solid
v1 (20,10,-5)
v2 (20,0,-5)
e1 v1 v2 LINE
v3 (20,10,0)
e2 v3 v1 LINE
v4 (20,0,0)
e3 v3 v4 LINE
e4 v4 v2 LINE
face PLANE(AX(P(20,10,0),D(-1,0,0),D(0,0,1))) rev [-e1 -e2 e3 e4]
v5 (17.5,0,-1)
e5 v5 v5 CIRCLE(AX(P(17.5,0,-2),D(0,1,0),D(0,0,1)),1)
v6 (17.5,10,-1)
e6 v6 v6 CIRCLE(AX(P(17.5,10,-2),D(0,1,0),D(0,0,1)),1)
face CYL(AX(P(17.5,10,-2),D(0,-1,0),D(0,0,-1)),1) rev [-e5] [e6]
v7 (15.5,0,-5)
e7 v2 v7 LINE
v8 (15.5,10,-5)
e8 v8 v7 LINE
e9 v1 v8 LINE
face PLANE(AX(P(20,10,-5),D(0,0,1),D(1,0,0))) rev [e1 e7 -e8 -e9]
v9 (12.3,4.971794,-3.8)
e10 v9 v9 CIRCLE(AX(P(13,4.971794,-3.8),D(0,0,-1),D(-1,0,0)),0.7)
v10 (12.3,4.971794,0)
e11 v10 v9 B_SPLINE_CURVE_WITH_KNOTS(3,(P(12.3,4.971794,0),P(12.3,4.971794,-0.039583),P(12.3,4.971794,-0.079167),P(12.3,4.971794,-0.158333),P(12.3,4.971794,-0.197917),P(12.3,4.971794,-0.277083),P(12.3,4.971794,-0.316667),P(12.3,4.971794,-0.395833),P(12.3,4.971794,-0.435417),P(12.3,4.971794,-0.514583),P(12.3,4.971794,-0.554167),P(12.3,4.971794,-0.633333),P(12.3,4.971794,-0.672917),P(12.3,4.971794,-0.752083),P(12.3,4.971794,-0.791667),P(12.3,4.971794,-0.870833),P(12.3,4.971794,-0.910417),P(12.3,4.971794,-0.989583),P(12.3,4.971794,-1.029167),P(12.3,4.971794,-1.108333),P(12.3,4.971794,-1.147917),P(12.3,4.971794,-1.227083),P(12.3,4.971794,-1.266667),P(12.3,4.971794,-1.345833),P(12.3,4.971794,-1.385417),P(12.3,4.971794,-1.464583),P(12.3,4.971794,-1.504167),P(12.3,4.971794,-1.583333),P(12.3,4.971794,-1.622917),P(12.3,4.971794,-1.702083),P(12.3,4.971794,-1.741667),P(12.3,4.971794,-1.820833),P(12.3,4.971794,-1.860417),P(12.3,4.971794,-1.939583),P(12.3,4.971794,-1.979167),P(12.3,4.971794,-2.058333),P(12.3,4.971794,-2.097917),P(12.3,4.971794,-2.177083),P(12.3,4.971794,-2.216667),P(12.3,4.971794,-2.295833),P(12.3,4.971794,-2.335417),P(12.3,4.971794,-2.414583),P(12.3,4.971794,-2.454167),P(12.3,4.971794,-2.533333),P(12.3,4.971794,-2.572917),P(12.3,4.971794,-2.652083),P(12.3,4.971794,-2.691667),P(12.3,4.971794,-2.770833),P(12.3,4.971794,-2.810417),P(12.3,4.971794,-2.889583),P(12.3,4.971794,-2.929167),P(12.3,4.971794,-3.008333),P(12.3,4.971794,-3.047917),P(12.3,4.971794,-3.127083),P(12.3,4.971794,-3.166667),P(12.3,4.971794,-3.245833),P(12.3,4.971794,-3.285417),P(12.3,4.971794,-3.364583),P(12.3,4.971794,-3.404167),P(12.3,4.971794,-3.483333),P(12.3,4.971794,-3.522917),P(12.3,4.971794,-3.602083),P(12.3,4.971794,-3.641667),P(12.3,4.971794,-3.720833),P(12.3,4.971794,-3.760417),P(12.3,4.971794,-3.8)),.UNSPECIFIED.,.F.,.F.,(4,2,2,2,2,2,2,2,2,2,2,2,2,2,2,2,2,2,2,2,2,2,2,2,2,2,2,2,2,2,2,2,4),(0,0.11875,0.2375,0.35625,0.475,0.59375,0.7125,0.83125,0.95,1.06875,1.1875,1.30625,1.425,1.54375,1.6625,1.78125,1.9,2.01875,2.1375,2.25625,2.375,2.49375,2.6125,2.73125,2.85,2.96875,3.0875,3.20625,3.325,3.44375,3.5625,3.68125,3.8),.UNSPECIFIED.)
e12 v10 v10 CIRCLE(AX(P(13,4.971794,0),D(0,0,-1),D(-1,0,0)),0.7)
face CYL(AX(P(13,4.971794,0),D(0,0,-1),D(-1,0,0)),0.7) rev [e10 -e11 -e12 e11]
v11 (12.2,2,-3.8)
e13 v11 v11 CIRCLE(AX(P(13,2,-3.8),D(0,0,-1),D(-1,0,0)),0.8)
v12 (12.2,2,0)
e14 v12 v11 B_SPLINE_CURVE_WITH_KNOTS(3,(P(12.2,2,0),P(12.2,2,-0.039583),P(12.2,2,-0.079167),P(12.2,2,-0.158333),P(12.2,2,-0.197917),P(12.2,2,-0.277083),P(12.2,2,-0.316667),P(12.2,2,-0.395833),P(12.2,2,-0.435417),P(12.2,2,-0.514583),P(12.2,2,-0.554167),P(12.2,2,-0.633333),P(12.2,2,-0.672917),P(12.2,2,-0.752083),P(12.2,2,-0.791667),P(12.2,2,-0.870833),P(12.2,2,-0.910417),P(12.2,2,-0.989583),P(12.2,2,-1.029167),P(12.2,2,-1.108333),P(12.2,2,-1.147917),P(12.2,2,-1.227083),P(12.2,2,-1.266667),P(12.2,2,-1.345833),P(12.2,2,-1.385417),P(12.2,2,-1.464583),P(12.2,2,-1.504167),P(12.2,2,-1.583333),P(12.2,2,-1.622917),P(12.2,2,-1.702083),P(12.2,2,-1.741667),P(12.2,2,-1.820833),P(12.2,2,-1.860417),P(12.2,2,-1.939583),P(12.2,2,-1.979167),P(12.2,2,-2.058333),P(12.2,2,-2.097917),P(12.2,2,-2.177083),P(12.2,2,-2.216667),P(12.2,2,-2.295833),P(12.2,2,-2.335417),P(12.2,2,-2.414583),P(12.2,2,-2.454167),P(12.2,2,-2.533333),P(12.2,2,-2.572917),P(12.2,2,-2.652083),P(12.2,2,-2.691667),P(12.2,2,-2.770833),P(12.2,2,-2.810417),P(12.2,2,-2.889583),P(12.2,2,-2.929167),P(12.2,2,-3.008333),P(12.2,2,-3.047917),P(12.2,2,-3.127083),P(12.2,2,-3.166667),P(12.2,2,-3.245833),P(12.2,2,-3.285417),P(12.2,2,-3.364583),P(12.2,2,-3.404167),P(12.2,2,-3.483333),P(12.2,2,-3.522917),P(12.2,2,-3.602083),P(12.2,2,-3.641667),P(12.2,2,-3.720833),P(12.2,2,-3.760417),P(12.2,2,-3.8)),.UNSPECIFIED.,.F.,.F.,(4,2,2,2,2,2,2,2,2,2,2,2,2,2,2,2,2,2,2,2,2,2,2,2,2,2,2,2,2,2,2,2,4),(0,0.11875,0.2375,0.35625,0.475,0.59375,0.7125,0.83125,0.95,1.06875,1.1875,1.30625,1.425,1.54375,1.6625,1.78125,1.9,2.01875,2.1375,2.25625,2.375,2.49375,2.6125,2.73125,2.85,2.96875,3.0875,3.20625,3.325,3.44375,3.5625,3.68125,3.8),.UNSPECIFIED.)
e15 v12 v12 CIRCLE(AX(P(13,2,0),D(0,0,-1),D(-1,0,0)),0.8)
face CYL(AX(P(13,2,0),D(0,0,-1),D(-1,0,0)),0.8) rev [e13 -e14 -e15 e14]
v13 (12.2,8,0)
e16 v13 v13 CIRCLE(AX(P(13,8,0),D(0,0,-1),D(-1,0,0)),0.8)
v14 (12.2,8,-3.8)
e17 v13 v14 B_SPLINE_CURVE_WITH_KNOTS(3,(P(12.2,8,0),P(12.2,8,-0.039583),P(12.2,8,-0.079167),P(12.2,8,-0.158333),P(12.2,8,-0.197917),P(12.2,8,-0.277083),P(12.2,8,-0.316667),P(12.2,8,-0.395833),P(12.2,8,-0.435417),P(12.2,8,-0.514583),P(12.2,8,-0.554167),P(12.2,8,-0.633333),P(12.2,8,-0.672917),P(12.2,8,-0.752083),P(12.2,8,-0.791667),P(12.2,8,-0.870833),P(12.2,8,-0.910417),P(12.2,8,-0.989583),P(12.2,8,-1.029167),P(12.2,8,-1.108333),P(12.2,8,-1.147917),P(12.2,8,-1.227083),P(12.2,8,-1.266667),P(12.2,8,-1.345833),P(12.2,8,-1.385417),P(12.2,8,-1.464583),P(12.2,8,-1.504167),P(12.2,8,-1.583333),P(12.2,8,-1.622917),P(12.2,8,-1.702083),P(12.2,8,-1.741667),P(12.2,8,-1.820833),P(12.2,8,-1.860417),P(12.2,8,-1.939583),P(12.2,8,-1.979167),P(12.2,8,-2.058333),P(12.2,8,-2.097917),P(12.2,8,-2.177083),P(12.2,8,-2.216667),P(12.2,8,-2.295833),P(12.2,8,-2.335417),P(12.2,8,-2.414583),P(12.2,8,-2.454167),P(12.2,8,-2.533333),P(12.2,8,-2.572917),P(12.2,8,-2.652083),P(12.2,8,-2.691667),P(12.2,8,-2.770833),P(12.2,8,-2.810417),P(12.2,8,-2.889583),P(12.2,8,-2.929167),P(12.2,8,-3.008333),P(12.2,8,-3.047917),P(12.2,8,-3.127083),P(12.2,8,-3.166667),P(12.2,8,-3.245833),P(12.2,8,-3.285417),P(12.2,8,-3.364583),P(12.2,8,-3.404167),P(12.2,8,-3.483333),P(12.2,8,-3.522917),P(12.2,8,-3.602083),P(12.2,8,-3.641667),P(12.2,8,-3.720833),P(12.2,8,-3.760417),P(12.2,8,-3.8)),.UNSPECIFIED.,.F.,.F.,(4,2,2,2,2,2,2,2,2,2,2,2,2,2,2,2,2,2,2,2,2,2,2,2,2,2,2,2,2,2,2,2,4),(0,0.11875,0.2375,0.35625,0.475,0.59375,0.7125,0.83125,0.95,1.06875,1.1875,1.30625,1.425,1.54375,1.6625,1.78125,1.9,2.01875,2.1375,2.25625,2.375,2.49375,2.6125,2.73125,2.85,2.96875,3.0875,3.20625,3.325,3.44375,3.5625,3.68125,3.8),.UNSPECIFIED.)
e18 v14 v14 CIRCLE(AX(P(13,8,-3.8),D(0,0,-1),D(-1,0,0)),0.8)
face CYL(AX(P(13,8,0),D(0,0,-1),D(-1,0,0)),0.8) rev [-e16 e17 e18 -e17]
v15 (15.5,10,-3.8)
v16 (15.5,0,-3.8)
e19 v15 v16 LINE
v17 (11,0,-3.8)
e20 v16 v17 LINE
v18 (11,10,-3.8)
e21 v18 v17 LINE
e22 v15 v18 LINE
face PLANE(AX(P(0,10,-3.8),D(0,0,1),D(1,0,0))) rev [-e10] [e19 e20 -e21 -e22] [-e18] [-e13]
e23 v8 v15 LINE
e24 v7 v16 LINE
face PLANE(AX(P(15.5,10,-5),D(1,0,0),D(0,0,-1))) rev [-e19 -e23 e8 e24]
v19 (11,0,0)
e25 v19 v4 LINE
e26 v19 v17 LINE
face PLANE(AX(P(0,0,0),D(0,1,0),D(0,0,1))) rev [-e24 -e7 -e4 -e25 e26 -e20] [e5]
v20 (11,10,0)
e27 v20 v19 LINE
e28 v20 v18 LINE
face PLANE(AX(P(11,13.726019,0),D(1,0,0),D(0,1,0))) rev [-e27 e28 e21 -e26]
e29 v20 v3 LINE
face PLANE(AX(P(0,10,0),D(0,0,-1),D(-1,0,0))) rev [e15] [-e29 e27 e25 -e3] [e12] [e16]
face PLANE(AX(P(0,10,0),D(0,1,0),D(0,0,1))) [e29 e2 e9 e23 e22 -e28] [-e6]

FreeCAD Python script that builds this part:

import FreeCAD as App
import Part
import Sketcher
Q = App.Units.Quantity

doc = App.newDocument("Part")
body = doc.addObject("PartDesign::Body", "Body")

# Sketch on XZ plane
sketch1 = doc.addObject("Sketcher::SketchObject", "Sketch")
body.addObject(sketch1)
sketch1.AttachmentSupport = (doc.XZ_Plane, [""])
sketch1.MapMode = "FlatFace"
sketch1.addGeometry([
    Part.LineSegment(App.Vector(0, 0, 0), App.Vector(20, 0, 0)),  # 0
    Part.LineSegment(App.Vector(20, 0, 0), App.Vector(20, -5, 0)),  # 1
    Part.LineSegment(App.Vector(20, -5, 0), App.Vector(15.5, -5, 0)),  # 2
    Part.LineSegment(App.Vector(15.5, -5, 0), App.Vector(15.5, -3.8, 0)),  # 3
    Part.LineSegment(App.Vector(15.5, -3.8, 0), App.Vector(0, -3.8, 0)),  # 4
    Part.LineSegment(App.Vector(0, -3.8, 0), App.Vector(0, 0, 0)),  # 5
    Part.Circle(App.Vector(2.5, -2, 0), App.Vector(0, 0, 1), 1),  # 6
    Part.Circle(App.Vector(17.5, -2, 0), App.Vector(0, 0, 1), 1),  # 7
], False)
sketch1.addConstraint([
    Sketcher.Constraint("Coincident", 0, 2, 1, 1),
    Sketcher.Constraint("Coincident", 1, 2, 2, 1),
    Sketcher.Constraint("Coincident", 2, 2, 3, 1),
    Sketcher.Constraint("Coincident", 3, 2, 4, 1),
    Sketcher.Constraint("Coincident", 4, 2, 5, 1),
    Sketcher.Constraint("Coincident", 5, 2, 0, 1),
    Sketcher.Constraint("Horizontal", 0),
    Sketcher.Constraint("Vertical", 1),
    Sketcher.Constraint("Horizontal", 2),
    Sketcher.Constraint("Vertical", 3),
    Sketcher.Constraint("Horizontal", 4),
    Sketcher.Constraint("Vertical", 5),
    Sketcher.Constraint("Coincident", 5, 2, -1, 1),
    Sketcher.Constraint("Equal", 6, 7),
    Sketcher.Constraint("Horizontal", 6, 3, 7, 3),
    Sketcher.Constraint("Diameter", 6, Q("2 mm")),
    Sketcher.Constraint("DistanceX", 0, 1, 0, 2, Q("20 mm")),
    Sketcher.Constraint("DistanceY", 1, 2, 1, 1, Q("5 mm")),
    Sketcher.Constraint("DistanceX", 2, 2, 2, 1, Q("4.5 mm")),
    Sketcher.Constraint("DistanceY", 3, 1, 3, 2, Q("1.2 mm")),
    Sketcher.Constraint("DistanceY", 6, 3, -1, 1, Q("2 mm")),
    Sketcher.Constraint("DistanceX", 6, 3, 7, 3, Q("15 mm")),
    Sketcher.Constraint("DistanceX", 2, 2, 7, 3, Q("2 mm")),
])
pad1 = doc.addObject("PartDesign::Pad", "Pad")
body.addObject(pad1)
pad1.Profile = sketch1
pad1.Length = 10
pad1.Reversed = True

# Sketch on XY plane
sketch2 = doc.addObject("Sketcher::SketchObject", "Sketch001")
body.addObject(sketch2)
sketch2.AttachmentSupport = (doc.XY_Plane, [""])
sketch2.MapMode = "FlatFace"
sketch2.AttachmentOffset = App.Placement(App.Vector(0, 0, -3.8), App.Rotation())
sketch2.addGeometry([
    Part.Circle(App.Vector(13, 5, 0), App.Vector(0, 0, 1), 0.7),
    Part.Circle(App.Vector(13, 8, 0), App.Vector(0, 0, 1), 0.8),
    Part.Circle(App.Vector(6.5, 4, 0), App.Vector(0, 0, 1), 2),
    Part.Circle(App.Vector(13, 2, 0), App.Vector(0, 0, 1), 0.8),
], False)
sketch2.addConstraint([
    Sketcher.Constraint("Equal", 1, 3),
    Sketcher.Constraint("Vertical", 0, 3, 1, 3),
    Sketcher.Constraint("Vertical", 1, 3, 3, 3),
    Sketcher.Constraint("Diameter", 2, Q("4 mm")),
    Sketcher.Constraint("Diameter", 0, Q("1.4 mm")),
    Sketcher.Constraint("Diameter", 1, Q("1.6 mm")),
    Sketcher.Constraint("DistanceX", -1, 1, 0, 3, Q("13 mm")),
    Sketcher.Constraint("DistanceY", -1, 1, 1, 3, Q("8 mm")),
    Sketcher.Constraint("DistanceY", -1, 1, 2, 3, Q("4 mm")),
    Sketcher.Constraint("DistanceY", -1, 1, 3, 3, Q("2 mm")),
    Sketcher.Constraint("DistanceX", -1, 1, 2, 3, Q("6.5 mm")),
    Sketcher.Constraint("DistanceY", -1, 1, 0, 3, Q("4.971794 mm")),
])
pocket1 = doc.addObject("PartDesign::Pocket", "Pocket")
body.addObject(pocket1)
pocket1.Profile = sketch2
pocket1.Type = "ThroughAll"
pocket1.Reversed = True

# Sketch on XY plane
sketch3 = doc.addObject("Sketcher::SketchObject", "Sketch002")
body.addObject(sketch3)
sketch3.AttachmentSupport = (doc.XY_Plane, [""])
sketch3.MapMode = "FlatFace"
sketch3.AttachmentOffset = App.Placement(App.Vector(0, 0, -3.8), App.Rotation())
sketch3.addGeometry([
    Part.LineSegment(App.Vector(11, 14, 0), App.Vector(11, -2, 0)),
    Part.LineSegment(App.Vector(11, -2, 0), App.Vector(0, -2, 0)),
    Part.LineSegment(App.Vector(0, -2, 0), App.Vector(0, 14, 0)),
    Part.LineSegment(App.Vector(0, 14, 0), App.Vector(11, 14, 0)),
], False)
sketch3.addConstraint([
    Sketcher.Constraint("Coincident", 0, 2, 1, 1),
    Sketcher.Constraint("Coincident", 1, 2, 2, 1),
    Sketcher.Constraint("Coincident", 2, 2, 3, 1),
    Sketcher.Constraint("Coincident", 3, 2, 0, 1),
    Sketcher.Constraint("Vertical", 0),
    Sketcher.Constraint("Horizontal", 1),
    Sketcher.Constraint("Vertical", 2),
    Sketcher.Constraint("Horizontal", 3),
    Sketcher.Constraint("PointOnObject", 1, 2, -2),
    Sketcher.Constraint("DistanceX", 1, 2, 1, 1, Q("11 mm")),
    Sketcher.Constraint("DistanceY", 0, 2, 0, 1, Q("15.934079 mm")),
    Sketcher.Constraint("DistanceY", 0, 2, -1, 1, Q("2.20806 mm")),
])
pocket2 = doc.addObject("PartDesign::Pocket", "Pocket001")
body.addObject(pocket2)
pocket2.Profile = sketch3
pocket2.Type = "ThroughAll"
pocket2.Reversed = True

doc.recompute()
